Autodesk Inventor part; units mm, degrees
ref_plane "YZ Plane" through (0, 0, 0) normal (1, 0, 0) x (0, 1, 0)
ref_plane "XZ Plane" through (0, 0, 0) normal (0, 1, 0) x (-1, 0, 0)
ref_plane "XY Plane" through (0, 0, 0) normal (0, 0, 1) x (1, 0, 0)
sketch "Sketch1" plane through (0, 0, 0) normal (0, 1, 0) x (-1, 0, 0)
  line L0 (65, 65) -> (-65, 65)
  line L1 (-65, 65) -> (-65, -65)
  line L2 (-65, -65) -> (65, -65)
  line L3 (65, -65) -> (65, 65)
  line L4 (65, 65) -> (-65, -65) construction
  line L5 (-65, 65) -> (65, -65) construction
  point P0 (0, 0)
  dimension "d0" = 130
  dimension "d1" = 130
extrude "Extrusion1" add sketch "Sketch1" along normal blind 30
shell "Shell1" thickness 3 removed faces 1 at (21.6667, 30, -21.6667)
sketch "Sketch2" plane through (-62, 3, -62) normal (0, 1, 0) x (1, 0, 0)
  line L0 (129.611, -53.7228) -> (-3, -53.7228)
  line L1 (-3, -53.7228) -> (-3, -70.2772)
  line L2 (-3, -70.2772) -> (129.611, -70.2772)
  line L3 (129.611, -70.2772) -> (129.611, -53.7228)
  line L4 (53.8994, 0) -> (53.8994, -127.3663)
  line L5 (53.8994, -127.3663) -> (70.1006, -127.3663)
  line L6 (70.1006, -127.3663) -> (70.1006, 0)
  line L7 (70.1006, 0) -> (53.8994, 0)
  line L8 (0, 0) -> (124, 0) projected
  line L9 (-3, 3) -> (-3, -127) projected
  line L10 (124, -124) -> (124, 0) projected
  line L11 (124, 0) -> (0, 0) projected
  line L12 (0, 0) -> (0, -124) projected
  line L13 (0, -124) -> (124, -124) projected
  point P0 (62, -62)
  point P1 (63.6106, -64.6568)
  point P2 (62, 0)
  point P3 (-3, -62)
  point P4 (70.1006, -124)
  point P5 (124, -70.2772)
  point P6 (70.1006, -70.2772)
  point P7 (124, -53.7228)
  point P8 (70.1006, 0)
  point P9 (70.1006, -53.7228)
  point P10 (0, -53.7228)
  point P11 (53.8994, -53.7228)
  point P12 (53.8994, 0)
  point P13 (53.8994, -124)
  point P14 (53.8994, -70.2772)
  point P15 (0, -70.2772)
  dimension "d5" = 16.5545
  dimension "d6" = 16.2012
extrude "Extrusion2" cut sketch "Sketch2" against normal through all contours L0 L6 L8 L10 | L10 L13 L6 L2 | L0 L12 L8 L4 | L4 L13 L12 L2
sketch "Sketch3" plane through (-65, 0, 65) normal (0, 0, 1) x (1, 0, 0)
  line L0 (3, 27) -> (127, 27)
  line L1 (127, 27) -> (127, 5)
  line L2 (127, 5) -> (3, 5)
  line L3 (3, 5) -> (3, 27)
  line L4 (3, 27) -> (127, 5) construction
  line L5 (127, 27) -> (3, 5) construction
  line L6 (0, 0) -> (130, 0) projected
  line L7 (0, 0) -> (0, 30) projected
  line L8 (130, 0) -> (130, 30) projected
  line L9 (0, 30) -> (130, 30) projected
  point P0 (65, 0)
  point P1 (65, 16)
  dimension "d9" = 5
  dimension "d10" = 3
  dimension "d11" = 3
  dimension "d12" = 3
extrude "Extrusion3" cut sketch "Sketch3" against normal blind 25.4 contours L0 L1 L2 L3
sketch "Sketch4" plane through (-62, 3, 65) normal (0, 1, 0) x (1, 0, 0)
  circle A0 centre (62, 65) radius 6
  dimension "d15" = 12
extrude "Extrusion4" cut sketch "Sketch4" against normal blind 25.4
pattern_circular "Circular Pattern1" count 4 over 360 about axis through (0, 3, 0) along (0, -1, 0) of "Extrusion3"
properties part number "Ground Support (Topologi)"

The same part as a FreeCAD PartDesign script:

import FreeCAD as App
import Part
import Sketcher


def faces_at(feature, points):
    """Names of the faces that lie closest to the given points."""
    faces = feature.Shape.Faces
    near = lambda p: min(range(len(faces)), key=lambda i: faces[i].distToShape(Part.Vertex(*p))[0])
    return sorted({f"Face{near(p) + 1}" for p in points})

doc = App.newDocument("Part")
body = doc.addObject("PartDesign::Body", "Body")

sketch1 = body.newObject("Sketcher::SketchObject", "Sketch")
sketch1.AttachmentSupport = (doc.getObject("XZ_Plane"), [""])
sketch1.MapMode = "FlatFace"
sketch1.addGeometry([
    Part.LineSegment(App.Vector(-65, -65, 0), App.Vector(-65, 65, 0)),
    Part.LineSegment(App.Vector(-65, 65, 0), App.Vector(65, 65, 0)),
    Part.LineSegment(App.Vector(65, 65, 0), App.Vector(65, -65, 0)),
    Part.LineSegment(App.Vector(65, -65, 0), App.Vector(-65, -65, 0)),
], False)
sketch1.addConstraint([
    Sketcher.Constraint("Coincident", 0, 2, 1, 1),
    Sketcher.Constraint("Coincident", 1, 2, 2, 1),
    Sketcher.Constraint("Coincident", 2, 2, 3, 1),
    Sketcher.Constraint("Coincident", 3, 2, 0, 1),
    Sketcher.Constraint("Vertical", 0),
    Sketcher.Constraint("Horizontal", 1),
    Sketcher.Constraint("Vertical", 2),
    Sketcher.Constraint("Horizontal", 3),
    Sketcher.Constraint("Symmetric", 0, 2, 2, 2, -1, 1),
    Sketcher.Constraint("Equal", 3, 0),
    Sketcher.Constraint("DistanceX", 1, 1, 1, 2, 130.0),
])
pad1 = body.newObject("PartDesign::Pad", "Pad")
pad1.Profile = sketch1
pad1.Length = 30
pad1.Reversed = True
doc.recompute()

thickness = body.newObject("PartDesign::Thickness", "Thickness")
thickness.Base = (pad1, faces_at(pad1, [(21.667, 30, -21.667)]))
thickness.Value = 3
thickness.Reversed = True
thickness.Join = "Intersection"

sketch2 = body.newObject("Sketcher::SketchObject", "Sketch001")
sketch2.AttachmentSupport = (doc.getObject("XZ_Plane"), [""])
sketch2.MapMode = "FlatFace"
sketch2.AttachmentOffset = App.Placement(App.Vector(0, 0, -3), App.Rotation())
sketch2.addGeometry([
    Part.LineSegment(App.Vector(8, -8, 0), App.Vector(62, -8, 0)),
    Part.LineSegment(App.Vector(62, -8, 0), App.Vector(62, -62, 0)),
    Part.LineSegment(App.Vector(62, -62, 0), App.Vector(8, -62, 0)),
    Part.LineSegment(App.Vector(8, -62, 0), App.Vector(8, -8, 0)),
    Part.LineSegment(App.Vector(62, 62, 0), App.Vector(62, 8, 0)),
    Part.LineSegment(App.Vector(62, 8, 0), App.Vector(8, 8, 0)),
    Part.LineSegment(App.Vector(8, 8, 0), App.Vector(8, 62, 0)),
    Part.LineSegment(App.Vector(8, 62, 0), App.Vector(62, 62, 0)),
    Part.LineSegment(App.Vector(-62, -8, 0), App.Vector(-8, -8, 0)),
    Part.LineSegment(App.Vector(-8, -8, 0), App.Vector(-8, -62, 0)),
    Part.LineSegment(App.Vector(-8, -62, 0), App.Vector(-62, -62, 0)),
    Part.LineSegment(App.Vector(-62, -62, 0), App.Vector(-62, -8, 0)),
    Part.LineSegment(App.Vector(-8, 62, 0), App.Vector(-8, 8, 0)),
    Part.LineSegment(App.Vector(-8, 8, 0), App.Vector(-62, 8, 0)),
    Part.LineSegment(App.Vector(-62, 8, 0), App.Vector(-62, 62, 0)),
    Part.LineSegment(App.Vector(-62, 62, 0), App.Vector(-8, 62, 0)),
], False)
sketch2.addConstraint([
    Sketcher.Constraint("Coincident", 0, 2, 1, 1),
    Sketcher.Constraint("Coincident", 1, 2, 2, 1),
    Sketcher.Constraint("Coincident", 2, 2, 3, 1),
    Sketcher.Constraint("Coincident", 3, 2, 0, 1),
    Sketcher.Constraint("Coincident", 4, 2, 5, 1),
    Sketcher.Constraint("Coincident", 5, 2, 6, 1),
    Sketcher.Constraint("Coincident", 6, 2, 7, 1),
    Sketcher.Constraint("Coincident", 7, 2, 4, 1),
    Sketcher.Constraint("Coincident", 8, 2, 9, 1),
    Sketcher.Constraint("Coincident", 9, 2, 10, 1),
    Sketcher.Constraint("Coincident", 10, 2, 11, 1),
    Sketcher.Constraint("Coincident", 11, 2, 8, 1),
    Sketcher.Constraint("Coincident", 12, 2, 13, 1),
    Sketcher.Constraint("Coincident", 13, 2, 14, 1),
    Sketcher.Constraint("Coincident", 14, 2, 15, 1),
    Sketcher.Constraint("Coincident", 15, 2, 12, 1),
    Sketcher.Constraint("Horizontal", 0),
    Sketcher.Constraint("Vertical", 1),
    Sketcher.Constraint("Horizontal", 2),
    Sketcher.Constraint("Vertical", 3),
    Sketcher.Constraint("Vertical", 4),
    Sketcher.Constraint("Horizontal", 5),
    Sketcher.Constraint("Vertical", 6),
    Sketcher.Constraint("Horizontal", 7),
    Sketcher.Constraint("Horizontal", 8),
    Sketcher.Constraint("Vertical", 9),
    Sketcher.Constraint("Horizontal", 10),
    Sketcher.Constraint("Vertical", 11),
    Sketcher.Constraint("Vertical", 12),
    Sketcher.Constraint("Horizontal", 13),
    Sketcher.Constraint("Vertical", 14),
    Sketcher.Constraint("Horizontal", 15),
    Sketcher.Constraint("Symmetric", 5, 2, 8, 2, -1, 1),
    Sketcher.Constraint("Symmetric", 7, 2, 10, 2, -1, 1),
    Sketcher.Constraint("Symmetric", 3, 2, 12, 2, -1, 1),
    Sketcher.Constraint("Symmetric", 1, 2, 14, 2, -1, 1),
    Sketcher.Constraint("Symmetric", 3, 2, 8, 2, -2),
    Sketcher.Constraint("Symmetric", 1, 2, 10, 2, -2),
    Sketcher.Constraint("DistanceX", -1, 1, 0, 2, 62.0),
    Sketcher.Constraint("DistanceY", 1, 2, -1, 1, 62.0),
    Sketcher.Constraint("DistanceY", 0, 2, 4, 2, 16.5544),
    Sketcher.Constraint("DistanceX", 8, 2, 3, 2, 16.2012),
])
pocket1 = body.newObject("PartDesign::Pocket", "Pocket")
pocket1.Profile = sketch2
pocket1.Type = "ThroughAll"
pocket1.Reversed = True

sketch3 = body.newObject("Sketcher::SketchObject", "Sketch002")
sketch3.AttachmentSupport = (doc.getObject("XY_Plane"), [""])
sketch3.MapMode = "FlatFace"
sketch3.AttachmentOffset = App.Placement(App.Vector(0, 0, 65), App.Rotation())
sketch3.addGeometry([
    Part.LineSegment(App.Vector(62, 27, 0), App.Vector(-62, 27, 0)),
    Part.LineSegment(App.Vector(-62, 27, 0), App.Vector(-62, 5, 0)),
    Part.LineSegment(App.Vector(-62, 5, 0), App.Vector(62, 5, 0)),
    Part.LineSegment(App.Vector(62, 5, 0), App.Vector(62, 27, 0)),
], False)
sketch3.addConstraint([
    Sketcher.Constraint("Coincident", 0, 2, 1, 1),
    Sketcher.Constraint("Coincident", 1, 2, 2, 1),
    Sketcher.Constraint("Coincident", 2, 2, 3, 1),
    Sketcher.Constraint("Coincident", 3, 2, 0, 1),
    Sketcher.Constraint("Horizontal", 0),
    Sketcher.Constraint("Vertical", 1),
    Sketcher.Constraint("Horizontal", 2),
    Sketcher.Constraint("Vertical", 3),
    Sketcher.Constraint("DistanceY", -1, 1, 1, 2, 5.0),
    Sketcher.Constraint("DistanceX", 0, 2, 0, 1, 124.0),
    Sketcher.Constraint("DistanceY", 1, 2, 1, 1, 22.0),
    Sketcher.Constraint("DistanceX", 0, 2, -1, 1, 62.0),
])
pocket2 = body.newObject("PartDesign::Pocket", "Pocket001")
pocket2.Profile = sketch3
pocket2.Length = 25.4

sketch4 = body.newObject("Sketcher::SketchObject", "Sketch003")
sketch4.AttachmentSupport = (doc.getObject("XZ_Plane"), [""])
sketch4.MapMode = "FlatFace"
sketch4.AttachmentOffset = App.Placement(App.Vector(0, 0, -3), App.Rotation())
sketch4.addGeometry(Part.Circle(App.Vector(0, 0, 0), App.Vector(0, 0, 1), 6), False)
sketch4.addConstraint([
    Sketcher.Constraint("Coincident", 0, 3, -1, 1),
    Sketcher.Constraint("Diameter", 0, 12.0),
])
pocket3 = body.newObject("PartDesign::Pocket", "Pocket002")
pocket3.Profile = sketch4
pocket3.Length = 25.4
pocket3.Reversed = True
doc.recompute()

polarpattern = body.newObject("PartDesign::PolarPattern", "PolarPattern")
polarpattern.Originals = [pocket2]
polarpattern.Axis = (doc.getObject("Y_Axis"), [""])
polarpattern.Angle = 360
polarpattern.Occurrences = 4
body.Tip = polarpattern

doc.recompute()
